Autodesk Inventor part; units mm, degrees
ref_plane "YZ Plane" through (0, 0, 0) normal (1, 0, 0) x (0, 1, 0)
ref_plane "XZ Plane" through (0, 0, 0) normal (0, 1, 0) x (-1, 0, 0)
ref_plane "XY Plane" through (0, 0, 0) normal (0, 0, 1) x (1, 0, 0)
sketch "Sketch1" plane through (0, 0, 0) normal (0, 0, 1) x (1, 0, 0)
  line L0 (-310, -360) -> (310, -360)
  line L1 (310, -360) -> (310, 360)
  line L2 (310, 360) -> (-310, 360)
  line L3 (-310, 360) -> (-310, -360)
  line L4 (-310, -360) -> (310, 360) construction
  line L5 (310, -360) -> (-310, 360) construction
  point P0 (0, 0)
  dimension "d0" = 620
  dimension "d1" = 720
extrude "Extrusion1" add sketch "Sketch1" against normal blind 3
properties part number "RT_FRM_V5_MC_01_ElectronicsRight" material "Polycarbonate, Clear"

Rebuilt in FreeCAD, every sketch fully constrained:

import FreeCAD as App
import Part
import Sketcher

V = App.Vector
Q = App.Units.Quantity

doc = App.newDocument("Part")
body = doc.addObject("PartDesign::Body", "Body")

# Sketch on XY plane
sketch1 = body.newObject("Sketcher::SketchObject", "Sketch")
sketch1.AttachmentSupport = (doc.getObject("XY_Plane"), [""])
sketch1.MapMode = "FlatFace"
sketch1.addGeometry([
    Part.LineSegment(V(-310, 360, 0), V(-310, -360, 0)),
    Part.LineSegment(V(-310, -360, 0), V(310, -360, 0)),
    Part.LineSegment(V(310, -360, 0), V(310, 360, 0)),
    Part.LineSegment(V(310, 360, 0), V(-310, 360, 0)),
], False)
sketch1.addConstraint([
    Sketcher.Constraint("Coincident", 0, 2, 1, 1),
    Sketcher.Constraint("Coincident", 1, 2, 2, 1),
    Sketcher.Constraint("Coincident", 2, 2, 3, 1),
    Sketcher.Constraint("Coincident", 3, 2, 0, 1),
    Sketcher.Constraint("Vertical", 0),
    Sketcher.Constraint("Horizontal", 1),
    Sketcher.Constraint("Vertical", 2),
    Sketcher.Constraint("Horizontal", 3),
    Sketcher.Constraint("Symmetric", 0, 2, 2, 2, -1, 1),
    Sketcher.Constraint("DistanceX", 1, 1, 1, 2, Q("620 mm")),
    Sketcher.Constraint("DistanceY", 0, 2, 0, 1, Q("720 mm")),
])
pad1 = body.newObject("PartDesign::Pad", "Pad")
pad1.Profile = sketch1
pad1.Length = 3
pad1.Reversed = True

doc.recompute()
